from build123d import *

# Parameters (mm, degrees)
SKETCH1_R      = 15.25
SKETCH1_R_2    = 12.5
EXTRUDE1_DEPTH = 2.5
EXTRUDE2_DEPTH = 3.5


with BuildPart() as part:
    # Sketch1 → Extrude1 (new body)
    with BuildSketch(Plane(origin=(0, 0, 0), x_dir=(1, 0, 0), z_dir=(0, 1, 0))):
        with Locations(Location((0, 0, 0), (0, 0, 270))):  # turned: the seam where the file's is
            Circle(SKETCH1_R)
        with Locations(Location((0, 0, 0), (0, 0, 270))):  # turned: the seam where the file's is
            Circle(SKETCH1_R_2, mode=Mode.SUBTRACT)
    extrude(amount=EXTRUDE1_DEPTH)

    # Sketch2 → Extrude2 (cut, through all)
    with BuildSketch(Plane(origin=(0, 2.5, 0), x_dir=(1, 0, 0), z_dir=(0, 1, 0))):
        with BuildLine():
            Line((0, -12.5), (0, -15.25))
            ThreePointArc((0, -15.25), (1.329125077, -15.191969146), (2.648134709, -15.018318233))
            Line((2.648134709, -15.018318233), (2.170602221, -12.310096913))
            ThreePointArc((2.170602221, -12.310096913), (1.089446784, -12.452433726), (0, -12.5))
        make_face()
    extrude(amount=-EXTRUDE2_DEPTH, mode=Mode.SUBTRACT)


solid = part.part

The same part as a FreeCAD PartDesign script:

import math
import FreeCAD as App
import Part
import Sketcher

V = App.Vector
Q = App.Units.Quantity

doc = App.newDocument("Part")
body = doc.addObject("PartDesign::Body", "Body")

# Sketch on XZ plane
sketch1 = body.newObject("Sketcher::SketchObject", "Sketch")
sketch1.AttachmentSupport = (doc.getObject("XZ_Plane"), [""])
sketch1.MapMode = "FlatFace"
sketch1.addGeometry([
    Part.Circle(V(0, 0, 0), V(0, 0, 1), 15),
    Part.Circle(V(0, 0, 0), V(0, 0, 1), 12),
], False)
sketch1.addConstraint([
    Sketcher.Constraint("Coincident", 0, 3, -1, 1),
    Sketcher.Constraint("Coincident", 1, 3, -1, 1),
    Sketcher.Constraint("Diameter", 1, 25.0),
    Sketcher.Constraint("Diameter", 0, 30.5),
])
pad1 = body.newObject("PartDesign::Pad", "Pad")
pad1.Profile = sketch1
pad1.Length = 2.5
pad1.Reversed = True

# Sketch on XZ plane
sketch2 = body.newObject("Sketcher::SketchObject", "Sketch001")
sketch2.AttachmentSupport = (doc.getObject("XZ_Plane"), [""])
sketch2.MapMode = "FlatFace"
sketch2.AttachmentOffset = App.Placement(V(0, 0, -2.5), App.Rotation())
sketch2.addGeometry([
    Part.LineSegment(V(0, 12.5, 0), V(0, 15.2, 0)),
    Part.ArcOfCircle(Part.Circle(V(0, 0, 0), V(0, 0, 1), 15.2), math.radians(80), math.radians(90)),
    Part.LineSegment(V(2.6, 15, 0), V(2.2, 12.3, 0)),
    Part.ArcOfCircle(Part.Circle(V(0, 0, 0), V(0, 0, 1), 12.5), math.radians(80), math.radians(90)),
], False)
sketch2.addConstraint([
    Sketcher.Constraint("Coincident", 0, 2, 1, 2),
    Sketcher.Constraint("Coincident", 1, 1, 2, 1),
    Sketcher.Constraint("Coincident", 2, 2, 3, 1),
    Sketcher.Constraint("Coincident", 3, 2, 0, 1),
    Sketcher.Constraint("Vertical", 0),
    Sketcher.Constraint("Coincident", 1, 3, -1, 1),
    Sketcher.Constraint("Coincident", 3, 3, -1, 1),
    Sketcher.Constraint("PointOnObject", 0, 2, -2),
    Sketcher.Constraint("Radius", 3, 12.5),
    Sketcher.Constraint("Angle", 2, Q("-100 deg")),
    Sketcher.Constraint("Radius", 1, 15.25),
    Sketcher.Constraint("DistanceY", -1, 1, 1, 1, 15.018318),
])
pocket1 = body.newObject("PartDesign::Pocket", "Pocket")
pocket1.Profile = sketch2
pocket1.Type = "ThroughAll"
pocket1.Reversed = True

doc.recompute()
